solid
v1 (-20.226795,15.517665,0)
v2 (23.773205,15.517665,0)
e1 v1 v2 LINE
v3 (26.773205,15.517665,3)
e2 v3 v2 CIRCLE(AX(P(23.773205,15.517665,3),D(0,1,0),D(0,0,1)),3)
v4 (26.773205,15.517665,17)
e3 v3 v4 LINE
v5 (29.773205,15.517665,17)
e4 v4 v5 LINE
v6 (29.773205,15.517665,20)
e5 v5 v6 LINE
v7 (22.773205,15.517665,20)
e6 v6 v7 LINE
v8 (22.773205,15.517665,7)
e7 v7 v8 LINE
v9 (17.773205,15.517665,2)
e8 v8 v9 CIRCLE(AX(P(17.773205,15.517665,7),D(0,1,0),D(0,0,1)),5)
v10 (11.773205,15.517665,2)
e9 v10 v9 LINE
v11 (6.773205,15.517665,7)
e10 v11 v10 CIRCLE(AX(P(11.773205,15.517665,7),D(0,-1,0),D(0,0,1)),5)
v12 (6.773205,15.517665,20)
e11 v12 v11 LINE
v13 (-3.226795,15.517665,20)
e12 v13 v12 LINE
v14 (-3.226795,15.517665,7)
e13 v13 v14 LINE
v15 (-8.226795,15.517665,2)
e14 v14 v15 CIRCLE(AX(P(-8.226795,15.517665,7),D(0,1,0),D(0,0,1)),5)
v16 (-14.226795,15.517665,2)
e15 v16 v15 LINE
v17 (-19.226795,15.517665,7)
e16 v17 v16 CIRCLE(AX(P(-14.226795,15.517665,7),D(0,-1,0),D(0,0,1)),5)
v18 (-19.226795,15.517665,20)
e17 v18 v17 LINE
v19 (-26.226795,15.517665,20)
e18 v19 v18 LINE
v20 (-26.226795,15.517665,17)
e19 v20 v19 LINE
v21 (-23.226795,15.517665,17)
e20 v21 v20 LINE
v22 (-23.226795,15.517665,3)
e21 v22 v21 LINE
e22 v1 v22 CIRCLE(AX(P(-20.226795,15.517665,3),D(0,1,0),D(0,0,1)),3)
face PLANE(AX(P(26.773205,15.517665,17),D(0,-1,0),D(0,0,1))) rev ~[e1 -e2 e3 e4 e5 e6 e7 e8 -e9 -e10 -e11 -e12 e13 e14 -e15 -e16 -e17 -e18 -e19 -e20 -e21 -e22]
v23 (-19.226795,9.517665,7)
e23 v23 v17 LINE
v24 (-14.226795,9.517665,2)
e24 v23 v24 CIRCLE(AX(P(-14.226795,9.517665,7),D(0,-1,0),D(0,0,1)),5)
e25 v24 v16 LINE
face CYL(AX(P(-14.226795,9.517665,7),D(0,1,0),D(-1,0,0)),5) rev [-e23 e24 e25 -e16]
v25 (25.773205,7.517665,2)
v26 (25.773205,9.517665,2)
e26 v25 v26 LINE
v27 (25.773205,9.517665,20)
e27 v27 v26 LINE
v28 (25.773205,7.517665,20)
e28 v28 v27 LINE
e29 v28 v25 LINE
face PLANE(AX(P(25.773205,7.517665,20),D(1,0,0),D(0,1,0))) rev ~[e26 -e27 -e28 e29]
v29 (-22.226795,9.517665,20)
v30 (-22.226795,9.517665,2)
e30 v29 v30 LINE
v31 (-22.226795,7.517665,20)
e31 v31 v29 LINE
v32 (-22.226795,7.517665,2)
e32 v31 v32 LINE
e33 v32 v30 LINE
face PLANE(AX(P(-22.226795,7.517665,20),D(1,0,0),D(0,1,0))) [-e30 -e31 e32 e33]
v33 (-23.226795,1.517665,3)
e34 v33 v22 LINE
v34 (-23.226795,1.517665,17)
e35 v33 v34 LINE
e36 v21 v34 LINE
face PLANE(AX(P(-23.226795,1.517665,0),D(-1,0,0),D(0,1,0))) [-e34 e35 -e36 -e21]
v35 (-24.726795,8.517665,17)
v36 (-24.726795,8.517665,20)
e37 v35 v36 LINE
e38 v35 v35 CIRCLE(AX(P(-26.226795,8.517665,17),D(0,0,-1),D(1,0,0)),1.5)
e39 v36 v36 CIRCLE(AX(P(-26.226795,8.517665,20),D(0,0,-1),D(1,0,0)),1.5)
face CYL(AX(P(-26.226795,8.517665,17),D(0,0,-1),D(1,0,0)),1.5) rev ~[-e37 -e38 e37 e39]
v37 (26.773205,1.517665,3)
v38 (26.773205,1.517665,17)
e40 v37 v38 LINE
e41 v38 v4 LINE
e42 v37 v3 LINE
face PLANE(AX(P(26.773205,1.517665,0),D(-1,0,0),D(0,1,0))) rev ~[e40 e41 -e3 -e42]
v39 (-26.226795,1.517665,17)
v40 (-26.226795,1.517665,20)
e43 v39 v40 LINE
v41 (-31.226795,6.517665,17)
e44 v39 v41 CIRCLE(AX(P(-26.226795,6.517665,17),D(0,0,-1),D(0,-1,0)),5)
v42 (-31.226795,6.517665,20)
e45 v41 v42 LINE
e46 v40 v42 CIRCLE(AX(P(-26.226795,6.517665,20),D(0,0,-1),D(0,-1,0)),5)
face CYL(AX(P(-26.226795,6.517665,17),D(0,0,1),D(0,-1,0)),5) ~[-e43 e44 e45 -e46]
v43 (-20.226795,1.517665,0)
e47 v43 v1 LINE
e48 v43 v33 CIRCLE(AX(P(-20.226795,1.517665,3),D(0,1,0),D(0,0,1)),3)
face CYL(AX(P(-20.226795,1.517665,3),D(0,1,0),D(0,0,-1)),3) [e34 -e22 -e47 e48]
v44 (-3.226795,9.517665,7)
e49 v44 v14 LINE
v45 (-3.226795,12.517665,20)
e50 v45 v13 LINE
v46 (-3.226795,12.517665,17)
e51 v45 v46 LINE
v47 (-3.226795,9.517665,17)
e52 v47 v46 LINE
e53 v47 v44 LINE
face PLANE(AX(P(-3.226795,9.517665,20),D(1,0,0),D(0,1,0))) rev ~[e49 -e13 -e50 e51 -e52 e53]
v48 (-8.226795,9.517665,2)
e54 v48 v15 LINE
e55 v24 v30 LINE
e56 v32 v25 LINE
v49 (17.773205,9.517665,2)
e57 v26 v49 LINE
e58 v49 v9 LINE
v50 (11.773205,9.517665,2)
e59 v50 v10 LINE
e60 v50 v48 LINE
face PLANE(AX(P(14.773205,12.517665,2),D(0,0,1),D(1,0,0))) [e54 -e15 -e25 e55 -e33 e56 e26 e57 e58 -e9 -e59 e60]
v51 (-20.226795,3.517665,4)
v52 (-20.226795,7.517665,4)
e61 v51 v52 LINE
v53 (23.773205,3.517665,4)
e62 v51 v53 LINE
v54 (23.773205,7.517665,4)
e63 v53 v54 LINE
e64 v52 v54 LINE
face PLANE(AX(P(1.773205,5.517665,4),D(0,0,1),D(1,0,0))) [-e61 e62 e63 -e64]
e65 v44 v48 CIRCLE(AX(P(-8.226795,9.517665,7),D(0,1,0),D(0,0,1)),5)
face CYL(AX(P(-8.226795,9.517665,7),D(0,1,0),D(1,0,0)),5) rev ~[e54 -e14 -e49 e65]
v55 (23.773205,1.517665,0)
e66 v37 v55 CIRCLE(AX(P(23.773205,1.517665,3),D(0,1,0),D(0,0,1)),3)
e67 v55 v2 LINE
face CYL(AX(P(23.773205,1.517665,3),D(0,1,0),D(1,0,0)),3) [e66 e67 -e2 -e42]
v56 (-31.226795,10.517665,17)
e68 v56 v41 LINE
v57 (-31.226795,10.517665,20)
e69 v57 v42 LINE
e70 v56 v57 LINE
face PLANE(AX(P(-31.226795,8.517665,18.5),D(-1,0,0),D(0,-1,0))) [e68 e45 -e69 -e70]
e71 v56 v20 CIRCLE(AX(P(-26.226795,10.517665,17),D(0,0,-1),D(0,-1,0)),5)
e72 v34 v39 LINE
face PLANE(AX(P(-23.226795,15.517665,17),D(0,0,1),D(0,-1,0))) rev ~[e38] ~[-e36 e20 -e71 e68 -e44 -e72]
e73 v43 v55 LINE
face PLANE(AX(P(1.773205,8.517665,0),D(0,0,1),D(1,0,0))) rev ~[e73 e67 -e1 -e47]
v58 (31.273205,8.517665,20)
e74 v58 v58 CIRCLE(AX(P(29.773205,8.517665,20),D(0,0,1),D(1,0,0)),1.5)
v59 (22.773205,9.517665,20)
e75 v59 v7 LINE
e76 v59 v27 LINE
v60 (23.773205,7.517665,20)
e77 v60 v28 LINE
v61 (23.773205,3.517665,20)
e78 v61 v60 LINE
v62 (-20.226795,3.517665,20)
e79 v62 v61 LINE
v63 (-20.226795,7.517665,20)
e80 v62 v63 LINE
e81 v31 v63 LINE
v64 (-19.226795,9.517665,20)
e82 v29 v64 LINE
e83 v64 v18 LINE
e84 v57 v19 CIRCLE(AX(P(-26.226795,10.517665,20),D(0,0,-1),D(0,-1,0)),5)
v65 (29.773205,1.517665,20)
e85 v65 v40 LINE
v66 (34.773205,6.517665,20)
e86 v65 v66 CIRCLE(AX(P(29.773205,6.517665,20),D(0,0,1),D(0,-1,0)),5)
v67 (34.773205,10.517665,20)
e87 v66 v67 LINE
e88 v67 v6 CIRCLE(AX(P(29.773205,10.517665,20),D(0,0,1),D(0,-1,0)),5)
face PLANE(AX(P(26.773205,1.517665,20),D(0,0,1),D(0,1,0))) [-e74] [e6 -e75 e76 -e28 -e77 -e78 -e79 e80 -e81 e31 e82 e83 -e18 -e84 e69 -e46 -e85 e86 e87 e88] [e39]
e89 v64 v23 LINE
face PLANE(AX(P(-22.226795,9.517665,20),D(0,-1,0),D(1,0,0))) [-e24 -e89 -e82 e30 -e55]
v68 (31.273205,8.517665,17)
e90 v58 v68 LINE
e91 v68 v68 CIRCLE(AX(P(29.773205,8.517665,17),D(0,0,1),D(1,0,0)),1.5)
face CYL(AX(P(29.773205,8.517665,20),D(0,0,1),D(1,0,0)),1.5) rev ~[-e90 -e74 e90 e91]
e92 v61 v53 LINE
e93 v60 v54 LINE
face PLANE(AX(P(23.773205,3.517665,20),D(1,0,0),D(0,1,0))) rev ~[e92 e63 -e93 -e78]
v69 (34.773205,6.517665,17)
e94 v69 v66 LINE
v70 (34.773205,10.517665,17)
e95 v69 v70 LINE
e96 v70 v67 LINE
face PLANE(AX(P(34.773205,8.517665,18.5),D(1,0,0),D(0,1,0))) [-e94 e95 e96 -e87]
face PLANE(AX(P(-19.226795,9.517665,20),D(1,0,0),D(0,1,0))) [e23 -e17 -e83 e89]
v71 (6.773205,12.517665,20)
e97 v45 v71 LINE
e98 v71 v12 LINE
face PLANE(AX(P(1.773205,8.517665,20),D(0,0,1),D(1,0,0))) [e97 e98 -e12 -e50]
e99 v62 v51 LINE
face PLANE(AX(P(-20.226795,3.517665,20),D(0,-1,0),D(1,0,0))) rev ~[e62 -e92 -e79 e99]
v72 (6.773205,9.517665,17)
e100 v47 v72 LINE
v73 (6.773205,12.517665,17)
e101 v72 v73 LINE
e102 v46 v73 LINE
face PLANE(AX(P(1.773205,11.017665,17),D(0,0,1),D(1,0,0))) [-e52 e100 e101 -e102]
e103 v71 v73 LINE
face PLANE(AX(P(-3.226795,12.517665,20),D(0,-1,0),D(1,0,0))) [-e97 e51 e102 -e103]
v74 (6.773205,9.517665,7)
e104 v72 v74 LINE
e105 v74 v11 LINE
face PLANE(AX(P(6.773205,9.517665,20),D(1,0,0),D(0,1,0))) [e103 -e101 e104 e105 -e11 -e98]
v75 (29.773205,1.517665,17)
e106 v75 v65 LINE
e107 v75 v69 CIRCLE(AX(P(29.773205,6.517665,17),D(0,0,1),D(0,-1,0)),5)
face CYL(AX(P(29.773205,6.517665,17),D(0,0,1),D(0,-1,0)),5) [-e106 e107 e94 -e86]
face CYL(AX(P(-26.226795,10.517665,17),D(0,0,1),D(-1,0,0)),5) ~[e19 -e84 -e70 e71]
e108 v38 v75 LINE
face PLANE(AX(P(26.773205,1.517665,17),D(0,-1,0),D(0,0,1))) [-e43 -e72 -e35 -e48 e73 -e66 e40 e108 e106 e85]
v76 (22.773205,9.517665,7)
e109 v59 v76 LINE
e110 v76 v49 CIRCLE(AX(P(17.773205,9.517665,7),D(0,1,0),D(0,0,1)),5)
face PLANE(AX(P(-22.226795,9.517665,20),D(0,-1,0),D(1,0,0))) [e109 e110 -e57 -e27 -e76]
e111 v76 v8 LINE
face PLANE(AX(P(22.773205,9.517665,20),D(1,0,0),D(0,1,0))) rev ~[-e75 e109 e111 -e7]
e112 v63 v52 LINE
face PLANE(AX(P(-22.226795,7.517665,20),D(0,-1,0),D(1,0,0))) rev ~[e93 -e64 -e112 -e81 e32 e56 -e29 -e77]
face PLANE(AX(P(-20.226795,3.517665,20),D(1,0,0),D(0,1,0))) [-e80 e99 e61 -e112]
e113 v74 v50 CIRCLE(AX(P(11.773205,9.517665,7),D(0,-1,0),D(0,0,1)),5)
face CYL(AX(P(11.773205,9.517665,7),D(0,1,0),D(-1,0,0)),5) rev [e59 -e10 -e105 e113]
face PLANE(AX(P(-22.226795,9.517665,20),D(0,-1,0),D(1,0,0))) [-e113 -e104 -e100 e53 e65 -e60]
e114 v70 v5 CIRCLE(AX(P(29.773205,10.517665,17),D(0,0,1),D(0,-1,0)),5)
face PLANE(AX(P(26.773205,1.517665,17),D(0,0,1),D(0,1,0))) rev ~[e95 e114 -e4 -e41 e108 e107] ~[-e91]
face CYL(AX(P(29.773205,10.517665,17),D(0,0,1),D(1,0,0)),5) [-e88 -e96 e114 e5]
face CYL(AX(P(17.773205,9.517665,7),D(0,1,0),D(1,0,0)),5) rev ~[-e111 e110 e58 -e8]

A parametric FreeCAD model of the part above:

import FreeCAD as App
import Part
import Sketcher
from FreeCAD import Vector


def edges_at(feature, points):
    """Names of the edges that pass closest to the given points."""
    edges = feature.Shape.Edges
    near = lambda p: min(range(len(edges)), key=lambda i: edges[i].distToShape(Part.Vertex(*p))[0])
    return sorted({f"Edge{near(p) + 1}" for p in points})


def add_polygon(sketch, points):
    """Adds a closed chain of lines whose ends are joined by coincident constraints."""
    first, n = sketch.GeometryCount, len(points)
    for a, b in zip(points, points[1:] + points[:1]):
        sketch.addGeometry(Part.LineSegment(App.Vector(*a, 0), App.Vector(*b, 0)), False)
    for i in range(n):
        sketch.addConstraint(Sketcher.Constraint("Coincident", first + i, 2, first + (i + 1) % n, 1))

doc = App.newDocument("Part")
params = doc.addObject("Spreadsheet::Sheet", "Params")
for row, (alias, value) in enumerate([
    ("sketch1_width", "50 mm"),
    ("sketch1_height", "14 mm"),
    ("pad1_length", "20 mm"),
    ("sketch2_width", "48 mm"),
    ("sketch2_height", "2 mm"),
    ("pocket1_length", "18 mm"),
    ("sketch3_width", "44 mm"),
    ("sketch3_height", "4 mm"),
    ("pocket2_length", "16 mm"),
    ("sketch4_width", "16 mm"),
    ("sketch4_height", "6 mm"),
    ("pocket3_length", "18 mm"),
    ("sketch5_width", "10 mm"),
    ("sketch5_height", "3 mm"),
    ("pocket4_length", "3 mm"),
    ("sketch6_width", "14 mm"),
    ("sketch6_height", "3 mm"),
    ("pad2_length", "8 mm"),
    ("sketch7_width", "14 mm"),
    ("sketch7_height", "3 mm"),
    ("pad3_length", "8 mm"),
    ("sketch8_diameter", "3 mm"),
    ("pocket5_length", "3 mm"),
    ("sketch9_diameter", "3 mm"),
    ("pocket6_length", "3 mm"),
    ("sketch10_diameter", "3 mm"),
    ("pocket7_length", "3 mm"),
    ("fillet_radius", "5 mm"),
    ("fillet2_radius", "3 mm"),
    ("fillet3_radius", "5 mm"),
    ("fillet4_radius", "5 mm"),
    ("fillet5_radius", "5 mm"),
    ("fillet6_radius", "5 mm"),
], start=1):
    params.set(f"A{row}", alias)
    params.set(f"B{row}", "=" + value)
    params.setAlias(f"B{row}", alias)

body = doc.addObject("PartDesign::Body", "Body")

# Sketch on XY plane
sketch1 = body.newObject("Sketcher::SketchObject", "Sketch")
sketch1.AttachmentSupport = (doc.getObject("XY_Plane"), [""])
sketch1.MapMode = "FlatFace"
add_polygon(sketch1, [(-23.226795, 15.517665), (-23.226795, 1.517665), (26.773205, 1.517665), (26.773205, 15.517665)])  # lines 0-3
sketch1.addConstraint([
    Sketcher.Constraint("Vertical", 0),
    Sketcher.Constraint("Horizontal", 1),
    Sketcher.Constraint("Vertical", 2),
    Sketcher.Constraint("Horizontal", 3),
    Sketcher.Constraint("DistanceX", 1, 1, 1, 2, 50.0),
    Sketcher.Constraint("DistanceY", 0, 2, 0, 1, 14.0),
    Sketcher.Constraint("DistanceX", 0, 2, -1, 1, 23.226795),
    Sketcher.Constraint("DistanceY", -1, 1, 0, 2, 1.517665),
])
sketch1.setExpression("Constraints[8]", "Params.sketch1_width")
sketch1.setExpression("Constraints[9]", "Params.sketch1_height")
pad1 = body.newObject("PartDesign::Pad", "Pad")
pad1.Profile = sketch1
pad1.setExpression("Length", "Params.pad1_length")

# Sketch on XY plane
sketch2 = body.newObject("Sketcher::SketchObject", "Sketch001")
sketch2.AttachmentSupport = (doc.getObject("XY_Plane"), [""])
sketch2.MapMode = "FlatFace"
sketch2.AttachmentOffset = App.Placement(Vector(0, 0, 20), App.Rotation())
add_polygon(sketch2, [(-22.226795, 9.517665), (-22.226795, 7.517665), (25.773205, 7.517665), (25.773205, 9.517665)])  # lines 0-3
sketch2.addConstraint([
    Sketcher.Constraint("Vertical", 0),
    Sketcher.Constraint("Horizontal", 1),
    Sketcher.Constraint("Vertical", 2),
    Sketcher.Constraint("Horizontal", 3),
    Sketcher.Constraint("DistanceX", 1, 1, 1, 2, 48.0),
    Sketcher.Constraint("DistanceY", 0, 2, 0, 1, 2.0),
    Sketcher.Constraint("DistanceX", 0, 2, -1, 1, 22.226795),
    Sketcher.Constraint("DistanceY", -1, 1, 0, 2, 7.517665),
])
sketch2.setExpression("Constraints[8]", "Params.sketch2_width")
sketch2.setExpression("Constraints[9]", "Params.sketch2_height")
pocket1 = body.newObject("PartDesign::Pocket", "Pocket")
pocket1.Profile = sketch2
pocket1.setExpression("Length", "Params.pocket1_length")

# Sketch on XY plane
sketch3 = body.newObject("Sketcher::SketchObject", "Sketch002")
sketch3.AttachmentSupport = (doc.getObject("XY_Plane"), [""])
sketch3.MapMode = "FlatFace"
sketch3.AttachmentOffset = App.Placement(Vector(0, 0, 20), App.Rotation())
add_polygon(sketch3, [(-20.226795, 7.517665), (-20.226795, 3.517665), (23.773205, 3.517665), (23.773205, 7.517665)])  # lines 0-3
sketch3.addConstraint([
    Sketcher.Constraint("Vertical", 0),
    Sketcher.Constraint("Horizontal", 1),
    Sketcher.Constraint("Vertical", 2),
    Sketcher.Constraint("Horizontal", 3),
    Sketcher.Constraint("DistanceX", 1, 1, 1, 2, 44.0),
    Sketcher.Constraint("DistanceY", 0, 2, 0, 1, 4.0),
    Sketcher.Constraint("DistanceX", 0, 2, -1, 1, 20.226795),
    Sketcher.Constraint("DistanceY", -1, 1, 0, 2, 3.517665),
])
sketch3.setExpression("Constraints[8]", "Params.sketch3_width")
sketch3.setExpression("Constraints[9]", "Params.sketch3_height")
pocket2 = body.newObject("PartDesign::Pocket", "Pocket001")
pocket2.Profile = sketch3
pocket2.setExpression("Length", "Params.pocket2_length")

# Sketch on XY plane
sketch4 = body.newObject("Sketcher::SketchObject", "Sketch003")
sketch4.AttachmentSupport = (doc.getObject("XY_Plane"), [""])
sketch4.MapMode = "FlatFace"
sketch4.AttachmentOffset = App.Placement(Vector(0, 0, 20), App.Rotation())
add_polygon(sketch4, [(-19.226795, 15.517665), (-19.226795, 9.517665), (-3.226795, 9.517665), (-3.226795, 15.517665)])  # lines 0-3
add_polygon(sketch4, [(6.773205, 15.517665), (6.773205, 9.517665), (22.773205, 9.517665), (22.773205, 15.517665)])  # lines 4-7
sketch4.addConstraint([
    Sketcher.Constraint("Vertical", 0),
    Sketcher.Constraint("Horizontal", 1),
    Sketcher.Constraint("Vertical", 2),
    Sketcher.Constraint("Horizontal", 3),
    Sketcher.Constraint("Vertical", 4),
    Sketcher.Constraint("Horizontal", 5),
    Sketcher.Constraint("Vertical", 6),
    Sketcher.Constraint("Horizontal", 7),
    Sketcher.Constraint("Horizontal", 1, 2, 4, 2),
    Sketcher.Constraint("Horizontal", 3, 2, 6, 2),
    Sketcher.Constraint("Equal", 3, 5),
    Sketcher.Constraint("DistanceX", 1, 1, 1, 2, 16.0),
    Sketcher.Constraint("DistanceY", 0, 2, 0, 1, 6.0),
    Sketcher.Constraint("DistanceX", 1, 2, 4, 2, 10.0),
    Sketcher.Constraint("DistanceX", 0, 2, -1, 1, 19.226795),
    Sketcher.Constraint("DistanceY", -1, 1, 0, 2, 9.517665),
])
sketch4.setExpression("Constraints[19]", "Params.sketch4_width")
sketch4.setExpression("Constraints[20]", "Params.sketch4_height")
pocket3 = body.newObject("PartDesign::Pocket", "Pocket002")
pocket3.Profile = sketch4
pocket3.setExpression("Length", "Params.pocket3_length")

# Sketch on XY plane
sketch5 = body.newObject("Sketcher::SketchObject", "Sketch004")
sketch5.AttachmentSupport = (doc.getObject("XY_Plane"), [""])
sketch5.MapMode = "FlatFace"
sketch5.AttachmentOffset = App.Placement(Vector(0, 0, 20), App.Rotation())
add_polygon(sketch5, [(-3.226795, 12.517665), (-3.226795, 9.517665), (6.773205, 9.517665), (6.773205, 12.517665)])  # lines 0-3
sketch5.addConstraint([
    Sketcher.Constraint("Vertical", 0),
    Sketcher.Constraint("Horizontal", 1),
    Sketcher.Constraint("Vertical", 2),
    Sketcher.Constraint("Horizontal", 3),
    Sketcher.Constraint("DistanceX", 1, 1, 1, 2, 10.0),
    Sketcher.Constraint("DistanceY", 0, 2, 0, 1, 3.0),
    Sketcher.Constraint("DistanceX", 0, 2, -1, 1, 3.226795),
    Sketcher.Constraint("DistanceY", -1, 1, 0, 2, 9.517665),
])
sketch5.setExpression("Constraints[8]", "Params.sketch5_width")
sketch5.setExpression("Constraints[9]", "Params.sketch5_height")
pocket4 = body.newObject("PartDesign::Pocket", "Pocket003")
pocket4.Profile = sketch5
pocket4.setExpression("Length", "Params.pocket4_length")

# Sketch on YZ plane
sketch6 = body.newObject("Sketcher::SketchObject", "Sketch005")
sketch6.AttachmentSupport = (doc.getObject("YZ_Plane"), [""])
sketch6.MapMode = "FlatFace"
sketch6.AttachmentOffset = App.Placement(Vector(0, 0, -23.226795), App.Rotation())
add_polygon(sketch6, [(15.517665, 20), (15.517665, 17), (1.517665, 17), (1.517665, 20)])  # lines 0-3
sketch6.addConstraint([
    Sketcher.Constraint("Vertical", 0),
    Sketcher.Constraint("Horizontal", 1),
    Sketcher.Constraint("Vertical", 2),
    Sketcher.Constraint("Horizontal", 3),
    Sketcher.Constraint("DistanceX", 1, 2, 1, 1, 14.0),
    Sketcher.Constraint("DistanceY", 0, 2, 0, 1, 3.0),
    Sketcher.Constraint("DistanceY", -1, 1, 0, 2, 17.0),
    Sketcher.Constraint("DistanceX", -1, 1, 0, 2, 15.517665),
])
sketch6.setExpression("Constraints[8]", "Params.sketch6_width")
sketch6.setExpression("Constraints[9]", "Params.sketch6_height")
pad2 = body.newObject("PartDesign::Pad", "Pad001")
pad2.Profile = sketch6
pad2.setExpression("Length", "Params.pad2_length")
pad2.Reversed = True

# Sketch on YZ plane
sketch7 = body.newObject("Sketcher::SketchObject", "Sketch006")
sketch7.AttachmentSupport = (doc.getObject("YZ_Plane"), [""])
sketch7.MapMode = "FlatFace"
sketch7.AttachmentOffset = App.Placement(Vector(0, 0, 26.773205), App.Rotation())
add_polygon(sketch7, [(1.517665, 20), (1.517665, 17), (15.517665, 17), (15.517665, 20)])  # lines 0-3
sketch7.addConstraint([
    Sketcher.Constraint("Vertical", 0),
    Sketcher.Constraint("Horizontal", 1),
    Sketcher.Constraint("Vertical", 2),
    Sketcher.Constraint("Horizontal", 3),
    Sketcher.Constraint("DistanceX", 1, 1, 1, 2, 14.0),
    Sketcher.Constraint("DistanceY", 0, 2, 0, 1, 3.0),
    Sketcher.Constraint("DistanceY", -1, 1, 0, 2, 17.0),
    Sketcher.Constraint("DistanceX", -1, 1, 0, 2, 1.517665),
])
sketch7.setExpression("Constraints[8]", "Params.sketch7_width")
sketch7.setExpression("Constraints[9]", "Params.sketch7_height")
pad3 = body.newObject("PartDesign::Pad", "Pad002")
pad3.Profile = sketch7
pad3.setExpression("Length", "Params.pad3_length")

# Sketch on XY plane
sketch8 = body.newObject("Sketcher::SketchObject", "Sketch007")
sketch8.AttachmentSupport = (doc.getObject("XY_Plane"), [""])
sketch8.MapMode = "FlatFace"
sketch8.AttachmentOffset = App.Placement(Vector(0, 0, 17), App.Rotation())
sketch8.addGeometry(Part.Circle(Vector(-26.226795, 8.517665, 0), Vector(0, 0, 1), 1.5), False)
sketch8.addConstraint([
    Sketcher.Constraint("Diameter", 0, 3.0),
    Sketcher.Constraint("DistanceX", 0, 3, -1, 1, 26.226795),
    Sketcher.Constraint("DistanceY", -1, 1, 0, 3, 8.517665),
])
sketch8.setExpression("Constraints[0]", "Params.sketch8_diameter")
pocket5 = body.newObject("PartDesign::Pocket", "Pocket004")
pocket5.Profile = sketch8
pocket5.setExpression("Length", "Params.pocket5_length")
pocket5.Reversed = True

# Sketch on XY plane
sketch9 = body.newObject("Sketcher::SketchObject", "Sketch008")
sketch9.AttachmentSupport = (doc.getObject("XY_Plane"), [""])
sketch9.MapMode = "FlatFace"
sketch9.AttachmentOffset = App.Placement(Vector(0, 0, 17), App.Rotation())
sketch9.addGeometry(Part.Circle(Vector(-26.226795, 8.517665, 0), Vector(0, 0, 1), 1.5), False)
sketch9.addConstraint([
    Sketcher.Constraint("Diameter", 0, 3.0),
    Sketcher.Constraint("DistanceX", 0, 3, -1, 1, 26.226795),
    Sketcher.Constraint("DistanceY", -1, 1, 0, 3, 8.517665),
])
sketch9.setExpression("Constraints[0]", "Params.sketch9_diameter")
pocket6 = body.newObject("PartDesign::Pocket", "Pocket005")
pocket6.Profile = sketch9
pocket6.setExpression("Length", "Params.pocket6_length")
pocket6.Reversed = True

# Sketch on XY plane
sketch10 = body.newObject("Sketcher::SketchObject", "Sketch009")
sketch10.AttachmentSupport = (doc.getObject("XY_Plane"), [""])
sketch10.MapMode = "FlatFace"
sketch10.AttachmentOffset = App.Placement(Vector(0, 0, 20), App.Rotation())
sketch10.addGeometry(Part.Circle(Vector(29.773205, 8.517665, 0), Vector(0, 0, 1), 1.5), False)
sketch10.addConstraint([
    Sketcher.Constraint("Diameter", 0, 3.0),
    Sketcher.Constraint("DistanceX", -1, 1, 0, 3, 29.773205),
    Sketcher.Constraint("DistanceY", -1, 1, 0, 3, 8.517665),
])
sketch10.setExpression("Constraints[0]", "Params.sketch10_diameter")
pocket7 = body.newObject("PartDesign::Pocket", "Pocket006")
pocket7.Profile = sketch10
pocket7.setExpression("Length", "Params.pocket7_length")
doc.recompute()

fillet = body.newObject("PartDesign::Fillet", "Fillet")
fillet.Base = (pocket7, edges_at(pocket7, [
    (34.773, 15.518, 18.5),
    (34.773, 1.518, 18.5),
    (-31.227, 1.518, 18.5),
    (-31.227, 15.518, 18.5),
]))
fillet.setExpression("Radius", "Params.fillet_radius")
doc.recompute()

fillet2 = body.newObject("PartDesign::Fillet", "Fillet001")
fillet2.Base = (fillet, edges_at(fillet, [(-23.227, 8.518, 0), (26.773, 8.518, 0)]))
fillet2.setExpression("Radius", "Params.fillet2_radius")
doc.recompute()

fillet3 = body.newObject("PartDesign::Fillet", "Fillet002")
fillet3.Base = (fillet2, edges_at(fillet2, [(-19.227, 12.518, 2)]))
fillet3.setExpression("Radius", "Params.fillet3_radius")
doc.recompute()

fillet4 = body.newObject("PartDesign::Fillet", "Fillet003")
fillet4.Base = (fillet3, edges_at(fillet3, [(-3.227, 12.518, 2)]))
fillet4.setExpression("Radius", "Params.fillet4_radius")
doc.recompute()

fillet5 = body.newObject("PartDesign::Fillet", "Fillet004")
fillet5.Base = (fillet4, edges_at(fillet4, [(22.773, 12.518, 2)]))
fillet5.setExpression("Radius", "Params.fillet5_radius")
doc.recompute()

fillet6 = body.newObject("PartDesign::Fillet", "Fillet005")
fillet6.Base = (fillet5, edges_at(fillet5, [(6.773, 12.518, 2)]))
fillet6.setExpression("Radius", "Params.fillet6_radius")

doc.recompute()
